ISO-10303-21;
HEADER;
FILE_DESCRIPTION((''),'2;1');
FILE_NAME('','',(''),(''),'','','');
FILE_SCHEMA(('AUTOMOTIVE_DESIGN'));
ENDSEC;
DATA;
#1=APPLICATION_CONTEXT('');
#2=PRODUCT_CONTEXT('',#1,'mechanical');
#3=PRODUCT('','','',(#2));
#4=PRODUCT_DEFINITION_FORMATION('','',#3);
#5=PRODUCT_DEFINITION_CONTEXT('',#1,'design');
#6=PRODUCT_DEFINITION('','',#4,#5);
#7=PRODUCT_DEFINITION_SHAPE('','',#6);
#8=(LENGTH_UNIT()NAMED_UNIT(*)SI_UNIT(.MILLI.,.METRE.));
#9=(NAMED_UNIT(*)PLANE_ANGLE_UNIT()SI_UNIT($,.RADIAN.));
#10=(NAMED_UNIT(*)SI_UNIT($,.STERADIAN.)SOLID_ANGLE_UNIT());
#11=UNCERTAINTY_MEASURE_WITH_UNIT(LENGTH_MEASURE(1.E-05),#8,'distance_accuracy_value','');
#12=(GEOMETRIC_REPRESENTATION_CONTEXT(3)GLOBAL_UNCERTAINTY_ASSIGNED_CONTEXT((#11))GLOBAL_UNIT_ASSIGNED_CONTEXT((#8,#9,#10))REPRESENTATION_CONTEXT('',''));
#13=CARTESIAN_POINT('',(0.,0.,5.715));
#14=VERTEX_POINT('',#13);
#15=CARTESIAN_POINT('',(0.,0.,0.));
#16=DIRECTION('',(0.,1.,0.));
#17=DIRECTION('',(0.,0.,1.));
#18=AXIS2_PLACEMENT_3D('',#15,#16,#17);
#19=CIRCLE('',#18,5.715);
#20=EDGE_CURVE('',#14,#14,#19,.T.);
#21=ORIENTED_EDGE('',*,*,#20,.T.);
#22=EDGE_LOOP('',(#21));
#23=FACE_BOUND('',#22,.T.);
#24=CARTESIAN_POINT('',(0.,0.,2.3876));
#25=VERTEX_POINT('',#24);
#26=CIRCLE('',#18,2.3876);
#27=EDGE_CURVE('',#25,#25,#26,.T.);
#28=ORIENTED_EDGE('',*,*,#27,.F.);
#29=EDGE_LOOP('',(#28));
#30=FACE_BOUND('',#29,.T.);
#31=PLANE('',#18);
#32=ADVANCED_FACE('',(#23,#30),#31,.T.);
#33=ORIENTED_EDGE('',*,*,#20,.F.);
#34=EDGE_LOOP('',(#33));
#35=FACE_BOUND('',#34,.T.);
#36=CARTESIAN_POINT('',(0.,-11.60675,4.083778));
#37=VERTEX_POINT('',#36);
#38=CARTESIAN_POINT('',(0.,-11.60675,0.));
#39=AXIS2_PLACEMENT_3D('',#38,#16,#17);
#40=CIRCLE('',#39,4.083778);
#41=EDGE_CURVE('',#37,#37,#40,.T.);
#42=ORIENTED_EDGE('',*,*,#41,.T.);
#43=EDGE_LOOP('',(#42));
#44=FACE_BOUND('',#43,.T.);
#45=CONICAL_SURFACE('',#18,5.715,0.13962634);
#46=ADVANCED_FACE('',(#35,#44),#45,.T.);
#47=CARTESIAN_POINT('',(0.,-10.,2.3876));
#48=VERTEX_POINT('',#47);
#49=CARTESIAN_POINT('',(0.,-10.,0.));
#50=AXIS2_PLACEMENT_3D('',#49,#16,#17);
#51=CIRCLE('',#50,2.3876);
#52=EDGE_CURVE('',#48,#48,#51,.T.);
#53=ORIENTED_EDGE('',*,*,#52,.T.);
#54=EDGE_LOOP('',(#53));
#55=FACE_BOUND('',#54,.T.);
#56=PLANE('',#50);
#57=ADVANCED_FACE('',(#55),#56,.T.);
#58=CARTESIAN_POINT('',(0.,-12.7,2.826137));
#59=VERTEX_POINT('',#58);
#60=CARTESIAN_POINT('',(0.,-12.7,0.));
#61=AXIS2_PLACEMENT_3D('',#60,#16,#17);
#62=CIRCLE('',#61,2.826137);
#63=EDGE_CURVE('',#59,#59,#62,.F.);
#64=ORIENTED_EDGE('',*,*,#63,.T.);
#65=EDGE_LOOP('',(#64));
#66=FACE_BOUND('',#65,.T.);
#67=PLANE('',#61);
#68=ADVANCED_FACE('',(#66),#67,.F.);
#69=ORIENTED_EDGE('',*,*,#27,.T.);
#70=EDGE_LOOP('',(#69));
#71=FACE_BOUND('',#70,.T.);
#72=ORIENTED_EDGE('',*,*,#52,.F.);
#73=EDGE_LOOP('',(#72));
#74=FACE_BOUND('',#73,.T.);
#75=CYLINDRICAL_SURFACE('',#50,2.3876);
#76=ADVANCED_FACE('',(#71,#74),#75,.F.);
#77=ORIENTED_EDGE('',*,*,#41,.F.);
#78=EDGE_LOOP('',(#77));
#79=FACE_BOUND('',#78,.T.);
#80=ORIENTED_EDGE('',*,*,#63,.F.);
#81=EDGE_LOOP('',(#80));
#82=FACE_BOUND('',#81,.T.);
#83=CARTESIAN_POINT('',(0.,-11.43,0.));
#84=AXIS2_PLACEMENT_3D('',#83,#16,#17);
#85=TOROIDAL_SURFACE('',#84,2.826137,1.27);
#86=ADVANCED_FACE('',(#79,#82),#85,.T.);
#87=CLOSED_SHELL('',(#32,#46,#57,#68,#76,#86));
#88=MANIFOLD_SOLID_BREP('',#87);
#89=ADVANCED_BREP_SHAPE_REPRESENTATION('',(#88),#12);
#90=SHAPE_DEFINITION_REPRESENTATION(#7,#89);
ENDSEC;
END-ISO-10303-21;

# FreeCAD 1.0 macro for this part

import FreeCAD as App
import Part
import Sketcher

V = App.Vector
Q = App.Units.Quantity


def edges_at(feature, points):
    """Names of the edges that pass closest to the given points."""
    edges = feature.Shape.Edges
    near = lambda p: min(range(len(edges)), key=lambda i: edges[i].distToShape(Part.Vertex(*p))[0])
    return sorted({f"Edge{near(p) + 1}" for p in points})

doc = App.newDocument("Part")
body = doc.addObject("PartDesign::Body", "Body")

# Sketch on XZ plane
sketch1 = body.newObject("Sketcher::SketchObject", "Sketch")
sketch1.AttachmentSupport = (doc.getObject("XZ_Plane"), [""])
sketch1.MapMode = "FlatFace"
sketch1.addGeometry(Part.Circle(V(0, 0, 0), V(0, 0, 1), 6), False)
sketch1.addConstraint(Sketcher.Constraint("Coincident", 0, 3, -1, 1))
sketch1.addConstraint(Sketcher.Constraint("Diameter", 0, Q("0.45 in")))
pad1 = body.newObject("PartDesign::Pad", "Pad")
pad1.Profile = sketch1
pad1.Length = Q("0.5 in")
pad1.TaperAngle = -8

# Sketch on XZ plane
sketch2 = body.newObject("Sketcher::SketchObject", "Sketch001")
sketch2.AttachmentSupport = (doc.getObject("XZ_Plane"), [""])
sketch2.MapMode = "FlatFace"
sketch2.addGeometry(Part.Circle(V(0, 0, 0), V(0, 0, 1), 2.4), False)
sketch2.addConstraint(Sketcher.Constraint("Coincident", 0, 3, -1, 1))
sketch2.addConstraint(Sketcher.Constraint("Diameter", 0, Q("0.188 in")))
pocket1 = body.newObject("PartDesign::Pocket", "Pocket")
pocket1.Profile = sketch2
pocket1.Length = 10
pocket1.Reversed = True
doc.recompute()

fillet = body.newObject("PartDesign::Fillet", "Fillet")
fillet.Base = (pocket1, edges_at(pocket1, [(-3.93, -12.7, 0)]))
fillet.Radius = Q("0.05 in")

doc.recompute()
